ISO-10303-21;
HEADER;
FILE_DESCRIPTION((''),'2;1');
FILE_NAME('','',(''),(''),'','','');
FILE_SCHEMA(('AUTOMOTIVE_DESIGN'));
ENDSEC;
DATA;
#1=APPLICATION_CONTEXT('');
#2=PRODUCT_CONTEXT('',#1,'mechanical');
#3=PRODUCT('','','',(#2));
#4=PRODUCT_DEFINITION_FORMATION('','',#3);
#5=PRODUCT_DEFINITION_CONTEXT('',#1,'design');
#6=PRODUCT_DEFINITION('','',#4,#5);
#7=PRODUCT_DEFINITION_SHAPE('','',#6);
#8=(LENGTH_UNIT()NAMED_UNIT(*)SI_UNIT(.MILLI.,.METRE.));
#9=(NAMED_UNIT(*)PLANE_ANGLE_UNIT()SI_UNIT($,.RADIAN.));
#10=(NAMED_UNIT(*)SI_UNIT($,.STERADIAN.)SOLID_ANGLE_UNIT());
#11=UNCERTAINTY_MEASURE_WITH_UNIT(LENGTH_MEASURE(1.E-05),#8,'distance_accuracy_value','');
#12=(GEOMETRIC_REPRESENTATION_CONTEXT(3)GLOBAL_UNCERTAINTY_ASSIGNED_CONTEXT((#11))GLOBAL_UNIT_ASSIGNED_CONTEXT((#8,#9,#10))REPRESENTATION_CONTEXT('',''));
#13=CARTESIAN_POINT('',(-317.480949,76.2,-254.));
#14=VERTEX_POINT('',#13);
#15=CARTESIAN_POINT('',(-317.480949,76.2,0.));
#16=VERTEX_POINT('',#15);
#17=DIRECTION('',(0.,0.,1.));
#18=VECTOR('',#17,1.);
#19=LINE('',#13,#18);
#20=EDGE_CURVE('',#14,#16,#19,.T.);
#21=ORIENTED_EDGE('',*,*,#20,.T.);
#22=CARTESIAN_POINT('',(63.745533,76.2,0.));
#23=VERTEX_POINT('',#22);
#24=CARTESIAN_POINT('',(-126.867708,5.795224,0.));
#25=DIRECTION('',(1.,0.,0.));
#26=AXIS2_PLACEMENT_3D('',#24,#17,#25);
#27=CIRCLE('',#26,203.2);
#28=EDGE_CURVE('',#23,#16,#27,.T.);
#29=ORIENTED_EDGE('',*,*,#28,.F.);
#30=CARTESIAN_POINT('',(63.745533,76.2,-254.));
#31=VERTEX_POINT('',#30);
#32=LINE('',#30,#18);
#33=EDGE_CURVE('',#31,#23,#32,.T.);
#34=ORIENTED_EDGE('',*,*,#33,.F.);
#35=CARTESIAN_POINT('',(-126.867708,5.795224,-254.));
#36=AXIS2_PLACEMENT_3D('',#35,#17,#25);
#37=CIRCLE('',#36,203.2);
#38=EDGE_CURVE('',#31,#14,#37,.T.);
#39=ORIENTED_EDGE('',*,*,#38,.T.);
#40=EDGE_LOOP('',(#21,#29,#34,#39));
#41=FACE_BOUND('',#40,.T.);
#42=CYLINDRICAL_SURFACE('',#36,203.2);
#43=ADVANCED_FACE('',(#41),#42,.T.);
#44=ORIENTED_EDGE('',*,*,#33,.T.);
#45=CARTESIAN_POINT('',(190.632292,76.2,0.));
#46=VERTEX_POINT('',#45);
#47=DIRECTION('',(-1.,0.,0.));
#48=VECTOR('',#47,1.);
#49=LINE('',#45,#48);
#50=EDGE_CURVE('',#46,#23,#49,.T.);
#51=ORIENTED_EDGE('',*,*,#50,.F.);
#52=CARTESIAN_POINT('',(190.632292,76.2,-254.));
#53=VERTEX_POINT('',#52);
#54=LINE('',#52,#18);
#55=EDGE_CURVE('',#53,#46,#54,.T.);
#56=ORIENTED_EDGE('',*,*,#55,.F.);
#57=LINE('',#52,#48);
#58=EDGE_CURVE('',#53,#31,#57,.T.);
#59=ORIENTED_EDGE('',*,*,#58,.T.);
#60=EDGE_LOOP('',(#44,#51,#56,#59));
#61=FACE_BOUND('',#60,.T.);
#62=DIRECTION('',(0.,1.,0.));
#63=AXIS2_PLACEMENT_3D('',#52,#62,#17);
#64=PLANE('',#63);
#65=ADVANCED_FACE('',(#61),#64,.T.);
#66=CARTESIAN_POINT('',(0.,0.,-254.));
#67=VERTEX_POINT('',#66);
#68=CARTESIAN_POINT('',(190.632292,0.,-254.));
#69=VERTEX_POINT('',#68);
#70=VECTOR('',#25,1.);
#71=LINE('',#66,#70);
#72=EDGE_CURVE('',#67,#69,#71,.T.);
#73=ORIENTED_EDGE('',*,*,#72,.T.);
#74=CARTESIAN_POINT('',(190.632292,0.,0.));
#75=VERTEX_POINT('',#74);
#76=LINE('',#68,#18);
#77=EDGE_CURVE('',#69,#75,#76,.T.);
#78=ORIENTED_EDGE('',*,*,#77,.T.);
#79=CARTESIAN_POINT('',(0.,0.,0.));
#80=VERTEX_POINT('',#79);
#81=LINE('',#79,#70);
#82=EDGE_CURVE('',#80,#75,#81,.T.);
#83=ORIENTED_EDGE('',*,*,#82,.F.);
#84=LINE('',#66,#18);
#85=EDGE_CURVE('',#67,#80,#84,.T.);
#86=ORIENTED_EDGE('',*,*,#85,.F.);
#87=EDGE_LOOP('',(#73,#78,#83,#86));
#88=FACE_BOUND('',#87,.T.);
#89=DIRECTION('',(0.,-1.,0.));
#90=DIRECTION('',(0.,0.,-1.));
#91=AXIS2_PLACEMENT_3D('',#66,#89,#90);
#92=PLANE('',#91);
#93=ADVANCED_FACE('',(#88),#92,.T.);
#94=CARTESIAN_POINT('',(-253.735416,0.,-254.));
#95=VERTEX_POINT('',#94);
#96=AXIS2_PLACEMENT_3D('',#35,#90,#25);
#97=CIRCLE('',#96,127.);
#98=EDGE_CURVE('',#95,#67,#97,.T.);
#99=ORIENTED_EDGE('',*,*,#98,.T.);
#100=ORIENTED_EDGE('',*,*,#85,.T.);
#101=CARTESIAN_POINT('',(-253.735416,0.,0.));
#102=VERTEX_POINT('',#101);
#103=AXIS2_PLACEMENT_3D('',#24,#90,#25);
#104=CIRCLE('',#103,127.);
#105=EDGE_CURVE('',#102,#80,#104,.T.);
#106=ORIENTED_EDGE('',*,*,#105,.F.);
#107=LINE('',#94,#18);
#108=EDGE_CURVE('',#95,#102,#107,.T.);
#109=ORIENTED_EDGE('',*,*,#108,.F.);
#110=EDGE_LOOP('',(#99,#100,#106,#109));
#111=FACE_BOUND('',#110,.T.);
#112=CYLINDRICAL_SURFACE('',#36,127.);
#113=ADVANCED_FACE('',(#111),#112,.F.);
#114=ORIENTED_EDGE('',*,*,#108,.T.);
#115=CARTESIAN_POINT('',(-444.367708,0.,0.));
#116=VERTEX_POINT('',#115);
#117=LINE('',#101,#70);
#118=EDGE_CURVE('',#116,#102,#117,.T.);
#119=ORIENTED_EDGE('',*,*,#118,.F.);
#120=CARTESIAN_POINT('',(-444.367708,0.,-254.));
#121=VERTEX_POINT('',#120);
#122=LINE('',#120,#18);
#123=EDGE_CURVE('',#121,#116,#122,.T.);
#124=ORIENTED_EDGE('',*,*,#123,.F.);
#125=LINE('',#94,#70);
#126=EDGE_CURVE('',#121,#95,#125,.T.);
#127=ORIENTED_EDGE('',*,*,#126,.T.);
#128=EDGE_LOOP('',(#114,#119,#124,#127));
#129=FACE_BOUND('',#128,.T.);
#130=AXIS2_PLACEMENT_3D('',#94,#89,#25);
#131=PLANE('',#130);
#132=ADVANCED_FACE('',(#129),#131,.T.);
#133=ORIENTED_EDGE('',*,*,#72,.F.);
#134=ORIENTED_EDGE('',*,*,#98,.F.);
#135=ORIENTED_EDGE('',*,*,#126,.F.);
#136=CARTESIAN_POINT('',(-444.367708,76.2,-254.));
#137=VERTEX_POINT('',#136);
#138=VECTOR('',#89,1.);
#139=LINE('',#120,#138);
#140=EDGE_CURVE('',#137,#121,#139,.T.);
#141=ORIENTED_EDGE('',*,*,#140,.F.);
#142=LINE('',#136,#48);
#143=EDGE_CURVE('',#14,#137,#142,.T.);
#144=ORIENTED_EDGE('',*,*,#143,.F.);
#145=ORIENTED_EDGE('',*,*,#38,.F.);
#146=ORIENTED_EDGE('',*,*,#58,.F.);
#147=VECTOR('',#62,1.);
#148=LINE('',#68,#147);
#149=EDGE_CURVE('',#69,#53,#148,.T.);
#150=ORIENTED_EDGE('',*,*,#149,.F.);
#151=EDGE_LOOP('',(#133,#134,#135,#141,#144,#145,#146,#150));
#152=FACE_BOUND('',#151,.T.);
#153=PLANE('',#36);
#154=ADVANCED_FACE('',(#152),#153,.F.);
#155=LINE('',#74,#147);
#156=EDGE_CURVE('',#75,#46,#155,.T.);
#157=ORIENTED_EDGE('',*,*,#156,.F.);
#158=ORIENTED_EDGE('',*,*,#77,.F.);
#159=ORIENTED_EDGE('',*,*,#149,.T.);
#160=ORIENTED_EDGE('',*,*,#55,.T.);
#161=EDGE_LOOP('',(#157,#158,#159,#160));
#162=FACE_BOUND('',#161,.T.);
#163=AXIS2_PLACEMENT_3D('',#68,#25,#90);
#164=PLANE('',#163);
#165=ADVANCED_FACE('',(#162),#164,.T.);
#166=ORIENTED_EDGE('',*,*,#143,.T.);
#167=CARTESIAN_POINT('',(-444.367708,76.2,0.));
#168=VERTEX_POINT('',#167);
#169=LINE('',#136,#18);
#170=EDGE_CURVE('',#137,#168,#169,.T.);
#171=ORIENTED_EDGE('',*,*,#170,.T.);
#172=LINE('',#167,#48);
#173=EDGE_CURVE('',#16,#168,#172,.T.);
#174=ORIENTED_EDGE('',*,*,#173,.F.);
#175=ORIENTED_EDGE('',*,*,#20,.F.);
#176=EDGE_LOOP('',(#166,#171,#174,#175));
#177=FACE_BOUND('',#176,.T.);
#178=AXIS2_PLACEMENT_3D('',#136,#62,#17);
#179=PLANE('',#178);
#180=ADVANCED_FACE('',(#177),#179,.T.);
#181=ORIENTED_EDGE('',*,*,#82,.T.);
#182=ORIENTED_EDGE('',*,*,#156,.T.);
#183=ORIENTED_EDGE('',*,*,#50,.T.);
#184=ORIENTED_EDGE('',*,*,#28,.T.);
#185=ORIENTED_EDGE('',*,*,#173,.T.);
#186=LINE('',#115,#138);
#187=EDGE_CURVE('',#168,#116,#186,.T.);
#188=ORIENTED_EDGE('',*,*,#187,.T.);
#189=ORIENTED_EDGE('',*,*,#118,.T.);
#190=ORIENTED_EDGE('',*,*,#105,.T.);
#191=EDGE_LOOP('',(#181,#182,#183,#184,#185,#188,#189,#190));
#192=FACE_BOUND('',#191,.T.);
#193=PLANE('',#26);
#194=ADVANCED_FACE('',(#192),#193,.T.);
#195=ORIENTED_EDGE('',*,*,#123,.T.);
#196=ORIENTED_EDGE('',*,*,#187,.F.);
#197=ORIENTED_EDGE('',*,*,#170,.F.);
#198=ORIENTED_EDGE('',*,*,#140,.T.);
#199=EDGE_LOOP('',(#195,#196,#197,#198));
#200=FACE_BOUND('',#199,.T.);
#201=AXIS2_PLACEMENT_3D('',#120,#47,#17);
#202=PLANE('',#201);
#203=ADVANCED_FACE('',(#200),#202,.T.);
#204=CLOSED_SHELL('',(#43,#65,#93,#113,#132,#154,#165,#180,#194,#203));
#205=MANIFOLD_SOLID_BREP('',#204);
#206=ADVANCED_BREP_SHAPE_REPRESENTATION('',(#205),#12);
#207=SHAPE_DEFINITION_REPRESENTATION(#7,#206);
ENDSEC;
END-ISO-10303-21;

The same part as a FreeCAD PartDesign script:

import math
import FreeCAD as App
import Part
import Sketcher
from FreeCAD import Vector
Q = App.Units.Quantity

doc = App.newDocument("Part")
body = doc.addObject("PartDesign::Body", "Body")

# Sketch on XY plane
sketch1 = body.newObject("Sketcher::SketchObject", "Sketch")
sketch1.AttachmentSupport = (doc.getObject("XY_Plane"), [""])
sketch1.MapMode = "FlatFace"
sketch1.addGeometry([
    Part.LineSegment(Vector(0, 0, 0), Vector(191, 0, 0)),  # 0
    Part.LineSegment(Vector(191, 0, 0), Vector(191, 76, 0)),  # 1
    Part.LineSegment(Vector(191, 76, 0), Vector(64, 76, 0)),  # 2
    Part.ArcOfCircle(Part.Circle(Vector(-127, 6, 0), Vector(0, 0, 1), 203), math.radians(20), math.radians(160)),  # 3
    Part.LineSegment(Vector(-317, 76, 0), Vector(-444, 76, 0)),  # 4
    Part.LineSegment(Vector(-444, 76, 0), Vector(-444, 0, 0)),  # 5
    Part.LineSegment(Vector(-444, 0, 0), Vector(-254, 0, 0)),  # 6
    Part.ArcOfCircle(Part.Circle(Vector(-127, 6, 0), Vector(0, 0, 1), 127), math.radians(-3), math.radians(183)),  # 7
], False)
sketch1.addConstraint([
    Sketcher.Constraint("Coincident", 0, 2, 1, 1),
    Sketcher.Constraint("Coincident", 1, 2, 2, 1),
    Sketcher.Constraint("Coincident", 2, 2, 3, 1),
    Sketcher.Constraint("Coincident", 3, 2, 4, 1),
    Sketcher.Constraint("Coincident", 4, 2, 5, 1),
    Sketcher.Constraint("Coincident", 5, 2, 6, 1),
    Sketcher.Constraint("Coincident", 6, 2, 7, 2),
    Sketcher.Constraint("Coincident", 7, 1, 0, 1),
    Sketcher.Constraint("Horizontal", 0),
    Sketcher.Constraint("Vertical", 1),
    Sketcher.Constraint("Horizontal", 2),
    Sketcher.Constraint("Horizontal", 4),
    Sketcher.Constraint("Vertical", 5),
    Sketcher.Constraint("Horizontal", 6),
    Sketcher.Constraint("Coincident", 7, 1, -1, 1),
    Sketcher.Constraint("Coincident", 7, 3, 3, 3),
    Sketcher.Constraint("PointOnObject", 5, 2, -1),
    Sketcher.Constraint("Horizontal", 2, 2, 3, 2),
    Sketcher.Constraint("Equal", 2, 4),
    Sketcher.Constraint("Radius", 3, Q("8 in")),
    Sketcher.Constraint("Radius", 7, Q("5 in")),
    Sketcher.Constraint("DistanceY", 1, 1, 1, 2, Q("3 in")),
    Sketcher.Constraint("DistanceX", 4, 2, 1, 2, Q("25 in")),
    Sketcher.Constraint("DistanceX", 0, 1, 0, 2, Q("190.632292 mm")),
])
pad1 = body.newObject("PartDesign::Pad", "Pad")
pad1.Profile = sketch1
pad1.Length = Q("10 in")
pad1.Reversed = True

doc.recompute()
